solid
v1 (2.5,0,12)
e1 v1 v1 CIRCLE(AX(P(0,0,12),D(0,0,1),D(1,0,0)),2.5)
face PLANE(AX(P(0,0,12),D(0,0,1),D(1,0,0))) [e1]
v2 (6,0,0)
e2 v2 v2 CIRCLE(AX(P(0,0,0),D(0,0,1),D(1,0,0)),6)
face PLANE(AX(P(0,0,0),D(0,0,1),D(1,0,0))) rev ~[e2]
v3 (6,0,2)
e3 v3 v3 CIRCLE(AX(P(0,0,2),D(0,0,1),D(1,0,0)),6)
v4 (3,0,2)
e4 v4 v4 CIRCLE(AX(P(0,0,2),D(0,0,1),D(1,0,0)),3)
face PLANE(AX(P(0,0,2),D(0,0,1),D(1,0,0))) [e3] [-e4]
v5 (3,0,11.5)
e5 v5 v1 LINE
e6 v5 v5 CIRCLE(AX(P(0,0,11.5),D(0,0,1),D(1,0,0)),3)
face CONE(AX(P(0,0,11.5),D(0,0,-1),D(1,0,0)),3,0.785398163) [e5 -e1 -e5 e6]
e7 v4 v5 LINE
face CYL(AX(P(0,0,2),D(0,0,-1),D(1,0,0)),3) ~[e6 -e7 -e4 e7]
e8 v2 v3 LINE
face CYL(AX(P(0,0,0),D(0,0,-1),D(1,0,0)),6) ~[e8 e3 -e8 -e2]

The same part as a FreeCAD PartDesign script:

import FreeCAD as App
import Part
import Sketcher

V = App.Vector
Q = App.Units.Quantity


def edges_at(feature, points):
    """Names of the edges that pass closest to the given points."""
    edges = feature.Shape.Edges
    near = lambda p: min(range(len(edges)), key=lambda i: edges[i].distToShape(Part.Vertex(*p))[0])
    return sorted({f"Edge{near(p) + 1}" for p in points})

doc = App.newDocument("Part")
body = doc.addObject("PartDesign::Body", "Body")

sketch1 = body.newObject("Sketcher::SketchObject", "Sketch")
sketch1.AttachmentSupport = (doc.getObject("XY_Plane"), [""])
sketch1.MapMode = "FlatFace"
sketch1.addGeometry(Part.Circle(V(0, 0, 0), V(0, 0, 1), 6), False)
sketch1.addConstraint(Sketcher.Constraint("Coincident", 0, 3, -1, 1))
sketch1.addConstraint(Sketcher.Constraint("Diameter", 0, Q("12 mm")))
pad1 = body.newObject("PartDesign::Pad", "Pad")
pad1.Profile = sketch1
pad1.Length = 2

sketch2 = body.newObject("Sketcher::SketchObject", "Sketch001")
sketch2.AttachmentSupport = (doc.getObject("XY_Plane"), [""])
sketch2.MapMode = "FlatFace"
sketch2.AttachmentOffset = App.Placement(V(0, 0, 2), App.Rotation())
sketch2.addGeometry(Part.Circle(V(0, 0, 0), V(0, 0, 1), 3), False)
sketch2.addConstraint(Sketcher.Constraint("Coincident", 0, 3, -1, 1))
sketch2.addConstraint(Sketcher.Constraint("Diameter", 0, Q("6 mm")))
pad2 = body.newObject("PartDesign::Pad", "Pad001")
pad2.Profile = sketch2
pad2.Length = 10
doc.recompute()

chamfer = body.newObject("PartDesign::Chamfer", "Chamfer")
chamfer.Base = (pad2, edges_at(pad2, [(-3, 0, 12)]))
chamfer.Size = 0.5

doc.recompute()
